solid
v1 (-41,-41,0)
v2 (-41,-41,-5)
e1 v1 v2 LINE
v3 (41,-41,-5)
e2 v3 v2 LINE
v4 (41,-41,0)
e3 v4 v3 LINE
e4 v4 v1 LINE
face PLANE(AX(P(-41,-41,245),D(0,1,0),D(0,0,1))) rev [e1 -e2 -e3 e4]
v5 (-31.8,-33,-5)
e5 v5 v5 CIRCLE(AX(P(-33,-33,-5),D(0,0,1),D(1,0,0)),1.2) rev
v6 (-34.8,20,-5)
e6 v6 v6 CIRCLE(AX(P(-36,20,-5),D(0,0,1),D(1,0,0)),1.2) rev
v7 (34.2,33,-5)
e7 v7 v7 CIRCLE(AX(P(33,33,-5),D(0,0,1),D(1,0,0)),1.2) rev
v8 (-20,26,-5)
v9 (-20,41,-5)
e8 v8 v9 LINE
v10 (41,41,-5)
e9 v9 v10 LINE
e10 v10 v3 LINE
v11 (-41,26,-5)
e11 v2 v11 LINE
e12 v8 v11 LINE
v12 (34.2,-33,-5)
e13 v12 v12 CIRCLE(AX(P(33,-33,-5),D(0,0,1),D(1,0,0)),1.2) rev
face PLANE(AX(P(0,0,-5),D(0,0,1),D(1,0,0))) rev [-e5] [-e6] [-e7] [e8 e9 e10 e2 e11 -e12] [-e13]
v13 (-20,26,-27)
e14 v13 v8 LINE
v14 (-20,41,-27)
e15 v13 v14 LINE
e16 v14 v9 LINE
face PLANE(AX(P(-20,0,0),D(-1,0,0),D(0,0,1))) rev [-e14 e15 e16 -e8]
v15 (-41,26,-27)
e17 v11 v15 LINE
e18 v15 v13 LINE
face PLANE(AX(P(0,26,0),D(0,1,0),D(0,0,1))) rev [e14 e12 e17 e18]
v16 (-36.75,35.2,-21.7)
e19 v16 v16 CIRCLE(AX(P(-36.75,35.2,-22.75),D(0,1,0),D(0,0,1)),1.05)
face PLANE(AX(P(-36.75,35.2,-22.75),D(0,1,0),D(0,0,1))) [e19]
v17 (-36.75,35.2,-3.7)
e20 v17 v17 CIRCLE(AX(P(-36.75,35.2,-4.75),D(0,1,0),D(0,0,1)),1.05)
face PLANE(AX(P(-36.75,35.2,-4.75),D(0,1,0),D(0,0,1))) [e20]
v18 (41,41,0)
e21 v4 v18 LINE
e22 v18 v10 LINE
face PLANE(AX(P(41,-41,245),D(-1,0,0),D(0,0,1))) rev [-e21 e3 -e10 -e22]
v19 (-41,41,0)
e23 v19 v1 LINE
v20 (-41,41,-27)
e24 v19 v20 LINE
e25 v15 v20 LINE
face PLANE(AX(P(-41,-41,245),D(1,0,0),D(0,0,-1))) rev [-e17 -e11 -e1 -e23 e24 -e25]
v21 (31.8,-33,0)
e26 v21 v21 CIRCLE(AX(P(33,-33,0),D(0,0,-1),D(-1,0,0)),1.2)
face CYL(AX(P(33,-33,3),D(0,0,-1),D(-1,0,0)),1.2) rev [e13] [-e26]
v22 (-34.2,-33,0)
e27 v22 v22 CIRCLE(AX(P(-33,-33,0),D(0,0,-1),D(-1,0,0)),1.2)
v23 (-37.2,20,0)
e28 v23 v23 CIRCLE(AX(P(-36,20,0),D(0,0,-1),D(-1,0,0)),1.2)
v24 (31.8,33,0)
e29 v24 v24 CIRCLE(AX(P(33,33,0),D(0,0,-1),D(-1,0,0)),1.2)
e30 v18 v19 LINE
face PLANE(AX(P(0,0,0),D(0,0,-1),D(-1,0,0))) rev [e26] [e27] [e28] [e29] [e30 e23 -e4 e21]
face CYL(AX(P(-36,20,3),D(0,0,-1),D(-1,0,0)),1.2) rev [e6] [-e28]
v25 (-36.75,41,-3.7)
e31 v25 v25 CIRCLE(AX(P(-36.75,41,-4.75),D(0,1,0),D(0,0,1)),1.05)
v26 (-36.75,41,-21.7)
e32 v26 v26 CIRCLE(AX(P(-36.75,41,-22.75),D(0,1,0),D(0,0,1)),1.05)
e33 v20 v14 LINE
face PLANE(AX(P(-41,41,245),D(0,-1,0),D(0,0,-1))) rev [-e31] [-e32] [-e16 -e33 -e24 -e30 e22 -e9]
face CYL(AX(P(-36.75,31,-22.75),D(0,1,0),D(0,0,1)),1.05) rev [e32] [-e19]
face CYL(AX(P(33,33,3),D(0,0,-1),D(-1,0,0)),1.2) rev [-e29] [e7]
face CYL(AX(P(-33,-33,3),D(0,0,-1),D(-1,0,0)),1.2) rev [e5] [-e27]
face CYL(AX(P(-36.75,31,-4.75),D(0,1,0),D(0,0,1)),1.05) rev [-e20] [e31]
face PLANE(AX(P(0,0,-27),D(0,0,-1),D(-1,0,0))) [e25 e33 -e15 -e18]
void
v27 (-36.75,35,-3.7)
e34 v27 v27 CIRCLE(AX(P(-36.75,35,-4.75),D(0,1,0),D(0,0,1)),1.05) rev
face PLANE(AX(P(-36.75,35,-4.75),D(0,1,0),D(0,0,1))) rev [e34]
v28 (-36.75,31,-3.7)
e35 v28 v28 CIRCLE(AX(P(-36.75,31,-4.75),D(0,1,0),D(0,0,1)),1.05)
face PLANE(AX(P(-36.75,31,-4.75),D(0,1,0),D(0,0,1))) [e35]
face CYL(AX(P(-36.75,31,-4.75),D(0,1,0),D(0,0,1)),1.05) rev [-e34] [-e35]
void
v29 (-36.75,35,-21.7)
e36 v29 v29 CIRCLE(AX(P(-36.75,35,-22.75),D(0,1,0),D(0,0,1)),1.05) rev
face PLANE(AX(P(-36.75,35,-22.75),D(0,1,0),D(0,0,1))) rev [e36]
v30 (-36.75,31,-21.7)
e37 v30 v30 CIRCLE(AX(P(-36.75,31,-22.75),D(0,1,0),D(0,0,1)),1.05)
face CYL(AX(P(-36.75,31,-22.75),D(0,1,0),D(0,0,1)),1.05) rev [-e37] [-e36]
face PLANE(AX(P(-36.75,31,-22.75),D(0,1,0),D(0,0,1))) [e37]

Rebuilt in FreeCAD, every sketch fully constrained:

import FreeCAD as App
import Part
import Sketcher
Q = App.Units.Quantity


def edges_at(feature, points):
    """Names of the edges that pass closest to the given points."""
    edges = feature.Shape.Edges
    near = lambda p: min(range(len(edges)), key=lambda i: edges[i].distToShape(Part.Vertex(*p))[0])
    return sorted({f"Edge{near(p) + 1}" for p in points})


def add_polygon(sketch, points):
    """Adds a closed chain of lines whose ends are joined by coincident constraints."""
    first, n = sketch.GeometryCount, len(points)
    for a, b in zip(points, points[1:] + points[:1]):
        sketch.addGeometry(Part.LineSegment(App.Vector(*a, 0), App.Vector(*b, 0)), False)
    for i in range(n):
        sketch.addConstraint(Sketcher.Constraint("Coincident", first + i, 2, first + (i + 1) % n, 1))

doc = App.newDocument("Part")
params = doc.addObject("Spreadsheet::Sheet", "Params")
for row, (alias, value) in enumerate([
    ("sketch1_diameter", "71 mm"),
    ("sketch1_width", "82 mm"),
    ("pad1_length", "245 mm"),
    ("sketch2_width", "82 mm"),
    ("pad2_length", "27 mm"),
    ("sketch3_width", "8 mm"),
    ("sketch3_height", "20 mm"),
    ("pocket1_length", "245 mm"),
    ("sketch4_diameter", "8 mm"),
    ("pocket2_length", "20 mm"),
    ("fillet_radius", "3 mm"),
    ("fillet2_radius", "3 mm"),
    ("fillet3_radius", "3 mm"),
    ("fillet4_radius", "3 mm"),
    ("sketch5_diameter", "2.1 mm"),
    ("pocket3_length", "10 mm"),
    ("sketch6_diameter", "2.1 mm"),
    ("pad3_length", "0.2 mm"),
    ("sketch7_width", "65 mm"),
    ("sketch7_height", "20 mm"),
    ("sketch8_width", "41 mm"),
    ("sketch8_height", "20 mm"),
    ("sketch9_diameter", "2.4 mm"),
    ("pocket6_length", "10 mm"),
    ("sketch10_width", "82 mm"),
    ("sketch10_height", "245 mm"),
    ("pocket7_length", "82 mm"),
    ("sketch11_width", "17 mm"),
    ("sketch11_height", "20 mm"),
    ("pocket8_length", "20 mm"),
    ("sketch12_width", "61 mm"),
    ("sketch12_width2", "82 mm"),
    ("sketch12_height", "17 mm"),
    ("pocket9_length", "2 mm"),
    ("sketch13_width", "21 mm"),
    ("sketch13_height", "22 mm"),
    ("pocket10_length", "2 mm"),
], start=1):
    params.set(f"A{row}", alias)
    params.set(f"B{row}", "=" + value)
    params.setAlias(f"B{row}", alias)

body = doc.addObject("PartDesign::Body", "Body")

# Sketch on XY plane
sketch1 = body.newObject("Sketcher::SketchObject", "Sketch")
sketch1.AttachmentSupport = (doc.getObject("XY_Plane"), [""])
sketch1.MapMode = "FlatFace"
add_polygon(sketch1, [(-41, 41), (-41, -41), (41, -41), (41, 41)])  # lines 0-3
sketch1.addGeometry(Part.Circle(App.Vector(0, 0, 0), App.Vector(0, 0, 1), 35.5), False)  # 4
sketch1.addConstraint([
    Sketcher.Constraint("Vertical", 0),
    Sketcher.Constraint("Horizontal", 1),
    Sketcher.Constraint("Vertical", 2),
    Sketcher.Constraint("Horizontal", 3),
    Sketcher.Constraint("Coincident", 4, 3, -1, 1),
    Sketcher.Constraint("Symmetric", 0, 2, 2, 2, -1, 1),
    Sketcher.Constraint("Equal", 3, 0),
    Sketcher.Constraint("Diameter", 4, Q("71 mm")),
    Sketcher.Constraint("DistanceX", 1, 1, 1, 2, Q("82 mm")),
])
sketch1.setExpression("Constraints[11]", "Params.sketch1_diameter")
sketch1.setExpression("Constraints[12]", "Params.sketch1_width")
pad1 = body.newObject("PartDesign::Pad", "Pad")
pad1.Profile = sketch1
pad1.setExpression("Length", "Params.pad1_length")

# Sketch on XY plane
sketch2 = body.newObject("Sketcher::SketchObject", "Sketch001")
sketch2.AttachmentSupport = (doc.getObject("XY_Plane"), [""])
sketch2.MapMode = "FlatFace"
add_polygon(sketch2, [(41, 41), (41, -41), (-41, -41), (-41, 41)])  # lines 0-3
sketch2.addConstraint([
    Sketcher.Constraint("Vertical", 0),
    Sketcher.Constraint("Horizontal", 1),
    Sketcher.Constraint("Vertical", 2),
    Sketcher.Constraint("Horizontal", 3),
    Sketcher.Constraint("Symmetric", 0, 2, 2, 2, -1, 1),
    Sketcher.Constraint("Equal", 3, 0),
    Sketcher.Constraint("DistanceX", 1, 2, 1, 1, Q("82 mm")),
])
sketch2.setExpression("Constraints[10]", "Params.sketch2_width")
pad2 = body.newObject("PartDesign::Pad", "Pad001")
pad2.Profile = sketch2
pad2.setExpression("Length", "Params.pad2_length")
pad2.Reversed = True

# Sketch on XY plane
sketch3 = body.newObject("Sketcher::SketchObject", "Sketch002")
sketch3.AttachmentSupport = (doc.getObject("XY_Plane"), [""])
sketch3.MapMode = "FlatFace"
sketch3.AttachmentOffset = App.Placement(App.Vector(0, 0, 245), App.Rotation())
add_polygon(sketch3, [(-41, 10), (-41, -10), (-33, -10), (-33, 10)])  # lines 0-3
sketch3.addConstraint([
    Sketcher.Constraint("Vertical", 0),
    Sketcher.Constraint("Horizontal", 1),
    Sketcher.Constraint("Vertical", 2),
    Sketcher.Constraint("Horizontal", 3),
    Sketcher.Constraint("DistanceX", 1, 1, 1, 2, Q("8 mm")),
    Sketcher.Constraint("DistanceY", 0, 2, 0, 1, Q("20 mm")),
    Sketcher.Constraint("DistanceX", 0, 2, -1, 1, Q("41 mm")),
    Sketcher.Constraint("DistanceY", 0, 2, -1, 1, Q("10 mm")),
])
sketch3.setExpression("Constraints[8]", "Params.sketch3_width")
sketch3.setExpression("Constraints[9]", "Params.sketch3_height")
pocket1 = body.newObject("PartDesign::Pocket", "Pocket")
pocket1.Profile = sketch3
pocket1.setExpression("Length", "Params.pocket1_length")

# Sketch on XY plane
sketch4 = body.newObject("Sketcher::SketchObject", "Sketch003")
sketch4.AttachmentSupport = (doc.getObject("XY_Plane"), [""])
sketch4.MapMode = "FlatFace"
sketch4.AttachmentOffset = App.Placement(App.Vector(0, 0, 245), App.Rotation())
sketch4.addGeometry([
    Part.Circle(App.Vector(-32.9, 33, 0), App.Vector(0, 0, 1), 4),
    Part.Circle(App.Vector(33.1, 32.9, 0), App.Vector(0, 0, 1), 4),
    Part.Circle(App.Vector(33, -33.1, 0), App.Vector(0, 0, 1), 4),
    Part.Circle(App.Vector(-33, -33, 0), App.Vector(0, 0, 1), 4),
], False)
sketch4.addConstraint([
    Sketcher.Constraint("Equal", 0, 1),
    Sketcher.Constraint("Equal", 1, 2),
    Sketcher.Constraint("Equal", 2, 3),
    Sketcher.Constraint("Diameter", 0, Q("8 mm")),
    Sketcher.Constraint("DistanceY", -1, 1, 0, 3, Q("33 mm")),
    Sketcher.Constraint("DistanceX", -1, 1, 2, 3, Q("33 mm")),
    Sketcher.Constraint("DistanceX", 3, 3, -1, 1, Q("33 mm")),
    Sketcher.Constraint("DistanceY", 3, 3, -1, 1, Q("33 mm")),
    Sketcher.Constraint("DistanceX", 0, 3, 1, 3, Q("66 mm")),
    Sketcher.Constraint("DistanceY", 2, 3, 1, 3, Q("66 mm")),
    Sketcher.Constraint("DistanceX", 0, 3, -1, 1, Q("32.9 mm")),
    Sketcher.Constraint("DistanceY", -1, 1, 1, 3, Q("32.9 mm")),
])
sketch4.setExpression("Constraints[3]", "Params.sketch4_diameter")
pocket2 = body.newObject("PartDesign::Pocket", "Pocket001")
pocket2.Profile = sketch4
pocket2.setExpression("Length", "Params.pocket2_length")
doc.recompute()

fillet = body.newObject("PartDesign::Fillet", "Fillet")
fillet.Base = (pocket2, edges_at(pocket2, [(-36.9, 33, 225)]))
fillet.setExpression("Radius", "Params.fillet_radius")
doc.recompute()

fillet2 = body.newObject("PartDesign::Fillet", "Fillet001")
fillet2.Base = (fillet, edges_at(fillet, [(29.1, 32.9, 225)]))
fillet2.setExpression("Radius", "Params.fillet2_radius")
doc.recompute()

fillet3 = body.newObject("PartDesign::Fillet", "Fillet002")
fillet3.Base = (fillet2, edges_at(fillet2, [(-37, -33, 225)]))
fillet3.setExpression("Radius", "Params.fillet3_radius")
doc.recompute()

fillet4 = body.newObject("PartDesign::Fillet", "Fillet003")
fillet4.Base = (fillet3, edges_at(fillet3, [(29, -33.1, 225)]))
fillet4.setExpression("Radius", "Params.fillet4_radius")

# Sketch on XZ plane
sketch5 = body.newObject("Sketcher::SketchObject", "Sketch004")
sketch5.AttachmentSupport = (doc.getObject("XZ_Plane"), [""])
sketch5.MapMode = "FlatFace"
sketch5.AttachmentOffset = App.Placement(App.Vector(0, 0, -41), App.Rotation())
sketch5.addGeometry([
    Part.Circle(App.Vector(-36.75, -22.75, 0), App.Vector(0, 0, 1), 1.05),
    Part.Circle(App.Vector(-36.75, -4.75, 0), App.Vector(0, 0, 1), 1.05),
], False)
sketch5.addConstraint([
    Sketcher.Constraint("Equal", 0, 1),
    Sketcher.Constraint("Vertical", 0, 3, 1, 3),
    Sketcher.Constraint("Diameter", 0, Q("2.1 mm")),
    Sketcher.Constraint("DistanceY", 0, 3, 1, 3, Q("18 mm")),
    Sketcher.Constraint("DistanceX", 0, 3, -1, 1, Q("36.75 mm")),
    Sketcher.Constraint("DistanceY", 0, 3, -1, 1, Q("22.75 mm")),
])
sketch5.setExpression("Constraints[2]", "Params.sketch5_diameter")
pocket3 = body.newObject("PartDesign::Pocket", "Pocket002")
pocket3.Profile = sketch5
pocket3.setExpression("Length", "Params.pocket3_length")
pocket3.Reversed = True

# Sketch on XZ plane
sketch6 = body.newObject("Sketcher::SketchObject", "Sketch005")
sketch6.AttachmentSupport = (doc.getObject("XZ_Plane"), [""])
sketch6.MapMode = "FlatFace"
sketch6.AttachmentOffset = App.Placement(App.Vector(0, 0, -35.2), App.Rotation())
sketch6.addGeometry([
    Part.Circle(App.Vector(-36.75, -22.75, 0), App.Vector(0, 0, 1), 1.05),
    Part.Circle(App.Vector(-36.75, -4.75, 0), App.Vector(0, 0, 1), 1.05),
], False)
sketch6.addConstraint([
    Sketcher.Constraint("Equal", 0, 1),
    Sketcher.Constraint("Vertical", 0, 3, 1, 3),
    Sketcher.Constraint("Diameter", 0, Q("2.1 mm")),
    Sketcher.Constraint("DistanceY", 0, 3, 1, 3, Q("18 mm")),
    Sketcher.Constraint("DistanceX", 0, 3, -1, 1, Q("36.75 mm")),
    Sketcher.Constraint("DistanceY", 0, 3, -1, 1, Q("22.75 mm")),
])
sketch6.setExpression("Constraints[2]", "Params.sketch6_diameter")
pad3 = body.newObject("PartDesign::Pad", "Pad002")
pad3.Profile = sketch6
pad3.setExpression("Length", "Params.pad3_length")

# Sketch on YZ plane
sketch7 = body.newObject("Sketcher::SketchObject", "Sketch006")
sketch7.AttachmentSupport = (doc.getObject("YZ_Plane"), [""])
sketch7.MapMode = "FlatFace"
sketch7.AttachmentOffset = App.Placement(App.Vector(0, 0, -41), App.Rotation())
add_polygon(sketch7, [(24, -7), (-41, -7), (-41, -27), (24, -27)])  # lines 0-3
sketch7.addConstraint([
    Sketcher.Constraint("Horizontal", 0),
    Sketcher.Constraint("Vertical", 1),
    Sketcher.Constraint("Horizontal", 2),
    Sketcher.Constraint("Vertical", 3),
    Sketcher.Constraint("DistanceX", 0, 2, 0, 1, Q("65 mm")),
    Sketcher.Constraint("DistanceY", 1, 2, 1, 1, Q("20 mm")),
    Sketcher.Constraint("DistanceX", 0, 2, -1, 1, Q("41 mm")),
    Sketcher.Constraint("DistanceY", 0, 2, -1, 1, Q("7 mm")),
])
sketch7.setExpression("Constraints[8]", "Params.sketch7_width")
sketch7.setExpression("Constraints[9]", "Params.sketch7_height")
pocket4 = body.newObject("PartDesign::Pocket", "Pocket003")
pocket4.Profile = sketch7
pocket4.Type = "UpToFirst"
pocket4.Reversed = True

# Sketch on XZ plane
sketch8 = body.newObject("Sketcher::SketchObject", "Sketch007")
sketch8.AttachmentSupport = (doc.getObject("XZ_Plane"), [""])
sketch8.MapMode = "FlatFace"
sketch8.AttachmentOffset = App.Placement(App.Vector(0, 0, -41), App.Rotation())
add_polygon(sketch8, [(0, -27), (0, -7), (41, -7), (41, -27)])  # lines 0-3
sketch8.addConstraint([
    Sketcher.Constraint("Vertical", 0),
    Sketcher.Constraint("Horizontal", 1),
    Sketcher.Constraint("Vertical", 2),
    Sketcher.Constraint("Horizontal", 3),
    Sketcher.Constraint("PointOnObject", 0, 2, -2),
    Sketcher.Constraint("DistanceX", 1, 1, 1, 2, Q("41 mm")),
    Sketcher.Constraint("DistanceY", 0, 1, 0, 2, Q("20 mm")),
    Sketcher.Constraint("DistanceY", 0, 2, -1, 1, Q("7 mm")),
])
sketch8.setExpression("Constraints[9]", "Params.sketch8_width")
sketch8.setExpression("Constraints[10]", "Params.sketch8_height")
pocket5 = body.newObject("PartDesign::Pocket", "Pocket004")
pocket5.Profile = sketch8
pocket5.Type = "UpToFirst"
pocket5.Reversed = True

# Sketch on XY plane
sketch9 = body.newObject("Sketcher::SketchObject", "Sketch008")
sketch9.AttachmentSupport = (doc.getObject("XY_Plane"), [""])
sketch9.MapMode = "FlatFace"
sketch9.AttachmentOffset = App.Placement(App.Vector(0, 0, -7), App.Rotation())
sketch9.addGeometry([
    Part.Circle(App.Vector(33, 33, 0), App.Vector(0, 0, 1), 1.2),
    Part.Circle(App.Vector(33, -33, 0), App.Vector(0, 0, 1), 1.2),
    Part.Circle(App.Vector(-33, -33, 0), App.Vector(0, 0, 1), 1.2),
    Part.Circle(App.Vector(-36, 20, 0), App.Vector(0, 0, 1), 1.2),
], False)
sketch9.addConstraint([
    Sketcher.Constraint("Equal", 0, 1),
    Sketcher.Constraint("Equal", 1, 2),
    Sketcher.Constraint("Equal", 2, 3),
    Sketcher.Constraint("Symmetric", 0, 3, 2, 3, -1, 1),
    Sketcher.Constraint("Symmetric", 1, 3, 2, 3, -2),
    Sketcher.Constraint("Diameter", 0, Q("2.4 mm")),
    Sketcher.Constraint("DistanceX", -1, 1, 0, 3, Q("33 mm")),
    Sketcher.Constraint("DistanceY", -1, 1, 0, 3, Q("33 mm")),
    Sketcher.Constraint("DistanceX", 3, 3, -1, 1, Q("36 mm")),
    Sketcher.Constraint("DistanceY", -1, 1, 3, 3, Q("20 mm")),
])
sketch9.setExpression("Constraints[5]", "Params.sketch9_diameter")
pocket6 = body.newObject("PartDesign::Pocket", "Pocket005")
pocket6.Profile = sketch9
pocket6.setExpression("Length", "Params.pocket6_length")
pocket6.Reversed = True

# Sketch on YZ plane
sketch10 = body.newObject("Sketcher::SketchObject", "Sketch009")
sketch10.AttachmentSupport = (doc.getObject("YZ_Plane"), [""])
sketch10.MapMode = "FlatFace"
sketch10.AttachmentOffset = App.Placement(App.Vector(0, 0, -41), App.Rotation())
add_polygon(sketch10, [(41, 0), (-41, 0), (-41, 245), (41, 245)])  # lines 0-3
sketch10.addConstraint([
    Sketcher.Constraint("Horizontal", 0),
    Sketcher.Constraint("Vertical", 1),
    Sketcher.Constraint("Horizontal", 2),
    Sketcher.Constraint("Vertical", 3),
    Sketcher.Constraint("Symmetric", 0, 2, 3, 2, -1, 1),
    Sketcher.Constraint("DistanceX", 0, 2, 0, 1, Q("82 mm")),
    Sketcher.Constraint("DistanceY", 1, 1, 1, 2, Q("245 mm")),
])
sketch10.setExpression("Constraints[9]", "Params.sketch10_width")
sketch10.setExpression("Constraints[10]", "Params.sketch10_height")
pocket7 = body.newObject("PartDesign::Pocket", "Pocket006")
pocket7.Profile = sketch10
pocket7.setExpression("Length", "Params.pocket7_length")
pocket7.Reversed = True

# Sketch on YZ plane
sketch11 = body.newObject("Sketcher::SketchObject", "Sketch010")
sketch11.AttachmentSupport = (doc.getObject("YZ_Plane"), [""])
sketch11.MapMode = "FlatFace"
add_polygon(sketch11, [(41, -7), (24, -7), (24, -27), (41, -27)])  # lines 0-3
sketch11.addConstraint([
    Sketcher.Constraint("Horizontal", 0),
    Sketcher.Constraint("Vertical", 1),
    Sketcher.Constraint("Horizontal", 2),
    Sketcher.Constraint("Vertical", 3),
    Sketcher.Constraint("DistanceX", 0, 2, 0, 1, Q("17 mm")),
    Sketcher.Constraint("DistanceY", 1, 2, 1, 1, Q("20 mm")),
    Sketcher.Constraint("DistanceX", -1, 1, 0, 2, Q("24 mm")),
    Sketcher.Constraint("DistanceY", 0, 2, -1, 1, Q("7 mm")),
])
sketch11.setExpression("Constraints[8]", "Params.sketch11_width")
sketch11.setExpression("Constraints[9]", "Params.sketch11_height")
pocket8 = body.newObject("PartDesign::Pocket", "Pocket007")
pocket8.Profile = sketch11
pocket8.setExpression("Length", "Params.pocket8_length")

# Sketch on XY plane
sketch12 = body.newObject("Sketcher::SketchObject", "Sketch011")
sketch12.AttachmentSupport = (doc.getObject("XY_Plane"), [""])
sketch12.MapMode = "FlatFace"
sketch12.AttachmentOffset = App.Placement(App.Vector(0, 0, -7), App.Rotation())
add_polygon(sketch12, [(-20, 24), (-20, 41), (41, 41), (41, -41), (-41, -41), (-41, 24)])  # lines 0-5
sketch12.addConstraint([
    Sketcher.Constraint("Vertical", 0),
    Sketcher.Constraint("Horizontal", 1),
    Sketcher.Constraint("Vertical", 2),
    Sketcher.Constraint("Horizontal", 3),
    Sketcher.Constraint("Vertical", 4),
    Sketcher.Constraint("Horizontal", 5),
    Sketcher.Constraint("Symmetric", 1, 2, 3, 2, -1, 1),
    Sketcher.Constraint("Equal", 3, 2),
    Sketcher.Constraint("DistanceX", 1, 1, 1, 2, Q("61 mm")),
    Sketcher.Constraint("DistanceX", 3, 2, 3, 1, Q("82 mm")),
    Sketcher.Constraint("DistanceY", 0, 1, 0, 2, Q("17 mm")),
])
sketch12.setExpression("Constraints[14]", "Params.sketch12_width")
sketch12.setExpression("Constraints[15]", "Params.sketch12_width2")
sketch12.setExpression("Constraints[16]", "Params.sketch12_height")
pocket9 = body.newObject("PartDesign::Pocket", "Pocket008")
pocket9.Profile = sketch12
pocket9.setExpression("Length", "Params.pocket9_length")
pocket9.Reversed = True

# Sketch on XZ plane
sketch13 = body.newObject("Sketcher::SketchObject", "Sketch012")
sketch13.AttachmentSupport = (doc.getObject("XZ_Plane"), [""])
sketch13.MapMode = "FlatFace"
sketch13.AttachmentOffset = App.Placement(App.Vector(0, 0, -24), App.Rotation())
add_polygon(sketch13, [(-41, -5), (-41, -27), (-20, -27), (-20, -5)])  # lines 0-3
sketch13.addConstraint([
    Sketcher.Constraint("Vertical", 0),
    Sketcher.Constraint("Horizontal", 1),
    Sketcher.Constraint("Vertical", 2),
    Sketcher.Constraint("Horizontal", 3),
    Sketcher.Constraint("DistanceX", 1, 1, 1, 2, Q("21 mm")),
    Sketcher.Constraint("DistanceY", 0, 2, 0, 1, Q("22 mm")),
    Sketcher.Constraint("DistanceX", 0, 2, -1, 1, Q("41 mm")),
    Sketcher.Constraint("DistanceY", 0, 2, -1, 1, Q("27 mm")),
])
sketch13.setExpression("Constraints[8]", "Params.sketch13_width")
sketch13.setExpression("Constraints[9]", "Params.sketch13_height")
pocket10 = body.newObject("PartDesign::Pocket", "Pocket009")
pocket10.Profile = sketch13
pocket10.setExpression("Length", "Params.pocket10_length")

doc.recompute()
